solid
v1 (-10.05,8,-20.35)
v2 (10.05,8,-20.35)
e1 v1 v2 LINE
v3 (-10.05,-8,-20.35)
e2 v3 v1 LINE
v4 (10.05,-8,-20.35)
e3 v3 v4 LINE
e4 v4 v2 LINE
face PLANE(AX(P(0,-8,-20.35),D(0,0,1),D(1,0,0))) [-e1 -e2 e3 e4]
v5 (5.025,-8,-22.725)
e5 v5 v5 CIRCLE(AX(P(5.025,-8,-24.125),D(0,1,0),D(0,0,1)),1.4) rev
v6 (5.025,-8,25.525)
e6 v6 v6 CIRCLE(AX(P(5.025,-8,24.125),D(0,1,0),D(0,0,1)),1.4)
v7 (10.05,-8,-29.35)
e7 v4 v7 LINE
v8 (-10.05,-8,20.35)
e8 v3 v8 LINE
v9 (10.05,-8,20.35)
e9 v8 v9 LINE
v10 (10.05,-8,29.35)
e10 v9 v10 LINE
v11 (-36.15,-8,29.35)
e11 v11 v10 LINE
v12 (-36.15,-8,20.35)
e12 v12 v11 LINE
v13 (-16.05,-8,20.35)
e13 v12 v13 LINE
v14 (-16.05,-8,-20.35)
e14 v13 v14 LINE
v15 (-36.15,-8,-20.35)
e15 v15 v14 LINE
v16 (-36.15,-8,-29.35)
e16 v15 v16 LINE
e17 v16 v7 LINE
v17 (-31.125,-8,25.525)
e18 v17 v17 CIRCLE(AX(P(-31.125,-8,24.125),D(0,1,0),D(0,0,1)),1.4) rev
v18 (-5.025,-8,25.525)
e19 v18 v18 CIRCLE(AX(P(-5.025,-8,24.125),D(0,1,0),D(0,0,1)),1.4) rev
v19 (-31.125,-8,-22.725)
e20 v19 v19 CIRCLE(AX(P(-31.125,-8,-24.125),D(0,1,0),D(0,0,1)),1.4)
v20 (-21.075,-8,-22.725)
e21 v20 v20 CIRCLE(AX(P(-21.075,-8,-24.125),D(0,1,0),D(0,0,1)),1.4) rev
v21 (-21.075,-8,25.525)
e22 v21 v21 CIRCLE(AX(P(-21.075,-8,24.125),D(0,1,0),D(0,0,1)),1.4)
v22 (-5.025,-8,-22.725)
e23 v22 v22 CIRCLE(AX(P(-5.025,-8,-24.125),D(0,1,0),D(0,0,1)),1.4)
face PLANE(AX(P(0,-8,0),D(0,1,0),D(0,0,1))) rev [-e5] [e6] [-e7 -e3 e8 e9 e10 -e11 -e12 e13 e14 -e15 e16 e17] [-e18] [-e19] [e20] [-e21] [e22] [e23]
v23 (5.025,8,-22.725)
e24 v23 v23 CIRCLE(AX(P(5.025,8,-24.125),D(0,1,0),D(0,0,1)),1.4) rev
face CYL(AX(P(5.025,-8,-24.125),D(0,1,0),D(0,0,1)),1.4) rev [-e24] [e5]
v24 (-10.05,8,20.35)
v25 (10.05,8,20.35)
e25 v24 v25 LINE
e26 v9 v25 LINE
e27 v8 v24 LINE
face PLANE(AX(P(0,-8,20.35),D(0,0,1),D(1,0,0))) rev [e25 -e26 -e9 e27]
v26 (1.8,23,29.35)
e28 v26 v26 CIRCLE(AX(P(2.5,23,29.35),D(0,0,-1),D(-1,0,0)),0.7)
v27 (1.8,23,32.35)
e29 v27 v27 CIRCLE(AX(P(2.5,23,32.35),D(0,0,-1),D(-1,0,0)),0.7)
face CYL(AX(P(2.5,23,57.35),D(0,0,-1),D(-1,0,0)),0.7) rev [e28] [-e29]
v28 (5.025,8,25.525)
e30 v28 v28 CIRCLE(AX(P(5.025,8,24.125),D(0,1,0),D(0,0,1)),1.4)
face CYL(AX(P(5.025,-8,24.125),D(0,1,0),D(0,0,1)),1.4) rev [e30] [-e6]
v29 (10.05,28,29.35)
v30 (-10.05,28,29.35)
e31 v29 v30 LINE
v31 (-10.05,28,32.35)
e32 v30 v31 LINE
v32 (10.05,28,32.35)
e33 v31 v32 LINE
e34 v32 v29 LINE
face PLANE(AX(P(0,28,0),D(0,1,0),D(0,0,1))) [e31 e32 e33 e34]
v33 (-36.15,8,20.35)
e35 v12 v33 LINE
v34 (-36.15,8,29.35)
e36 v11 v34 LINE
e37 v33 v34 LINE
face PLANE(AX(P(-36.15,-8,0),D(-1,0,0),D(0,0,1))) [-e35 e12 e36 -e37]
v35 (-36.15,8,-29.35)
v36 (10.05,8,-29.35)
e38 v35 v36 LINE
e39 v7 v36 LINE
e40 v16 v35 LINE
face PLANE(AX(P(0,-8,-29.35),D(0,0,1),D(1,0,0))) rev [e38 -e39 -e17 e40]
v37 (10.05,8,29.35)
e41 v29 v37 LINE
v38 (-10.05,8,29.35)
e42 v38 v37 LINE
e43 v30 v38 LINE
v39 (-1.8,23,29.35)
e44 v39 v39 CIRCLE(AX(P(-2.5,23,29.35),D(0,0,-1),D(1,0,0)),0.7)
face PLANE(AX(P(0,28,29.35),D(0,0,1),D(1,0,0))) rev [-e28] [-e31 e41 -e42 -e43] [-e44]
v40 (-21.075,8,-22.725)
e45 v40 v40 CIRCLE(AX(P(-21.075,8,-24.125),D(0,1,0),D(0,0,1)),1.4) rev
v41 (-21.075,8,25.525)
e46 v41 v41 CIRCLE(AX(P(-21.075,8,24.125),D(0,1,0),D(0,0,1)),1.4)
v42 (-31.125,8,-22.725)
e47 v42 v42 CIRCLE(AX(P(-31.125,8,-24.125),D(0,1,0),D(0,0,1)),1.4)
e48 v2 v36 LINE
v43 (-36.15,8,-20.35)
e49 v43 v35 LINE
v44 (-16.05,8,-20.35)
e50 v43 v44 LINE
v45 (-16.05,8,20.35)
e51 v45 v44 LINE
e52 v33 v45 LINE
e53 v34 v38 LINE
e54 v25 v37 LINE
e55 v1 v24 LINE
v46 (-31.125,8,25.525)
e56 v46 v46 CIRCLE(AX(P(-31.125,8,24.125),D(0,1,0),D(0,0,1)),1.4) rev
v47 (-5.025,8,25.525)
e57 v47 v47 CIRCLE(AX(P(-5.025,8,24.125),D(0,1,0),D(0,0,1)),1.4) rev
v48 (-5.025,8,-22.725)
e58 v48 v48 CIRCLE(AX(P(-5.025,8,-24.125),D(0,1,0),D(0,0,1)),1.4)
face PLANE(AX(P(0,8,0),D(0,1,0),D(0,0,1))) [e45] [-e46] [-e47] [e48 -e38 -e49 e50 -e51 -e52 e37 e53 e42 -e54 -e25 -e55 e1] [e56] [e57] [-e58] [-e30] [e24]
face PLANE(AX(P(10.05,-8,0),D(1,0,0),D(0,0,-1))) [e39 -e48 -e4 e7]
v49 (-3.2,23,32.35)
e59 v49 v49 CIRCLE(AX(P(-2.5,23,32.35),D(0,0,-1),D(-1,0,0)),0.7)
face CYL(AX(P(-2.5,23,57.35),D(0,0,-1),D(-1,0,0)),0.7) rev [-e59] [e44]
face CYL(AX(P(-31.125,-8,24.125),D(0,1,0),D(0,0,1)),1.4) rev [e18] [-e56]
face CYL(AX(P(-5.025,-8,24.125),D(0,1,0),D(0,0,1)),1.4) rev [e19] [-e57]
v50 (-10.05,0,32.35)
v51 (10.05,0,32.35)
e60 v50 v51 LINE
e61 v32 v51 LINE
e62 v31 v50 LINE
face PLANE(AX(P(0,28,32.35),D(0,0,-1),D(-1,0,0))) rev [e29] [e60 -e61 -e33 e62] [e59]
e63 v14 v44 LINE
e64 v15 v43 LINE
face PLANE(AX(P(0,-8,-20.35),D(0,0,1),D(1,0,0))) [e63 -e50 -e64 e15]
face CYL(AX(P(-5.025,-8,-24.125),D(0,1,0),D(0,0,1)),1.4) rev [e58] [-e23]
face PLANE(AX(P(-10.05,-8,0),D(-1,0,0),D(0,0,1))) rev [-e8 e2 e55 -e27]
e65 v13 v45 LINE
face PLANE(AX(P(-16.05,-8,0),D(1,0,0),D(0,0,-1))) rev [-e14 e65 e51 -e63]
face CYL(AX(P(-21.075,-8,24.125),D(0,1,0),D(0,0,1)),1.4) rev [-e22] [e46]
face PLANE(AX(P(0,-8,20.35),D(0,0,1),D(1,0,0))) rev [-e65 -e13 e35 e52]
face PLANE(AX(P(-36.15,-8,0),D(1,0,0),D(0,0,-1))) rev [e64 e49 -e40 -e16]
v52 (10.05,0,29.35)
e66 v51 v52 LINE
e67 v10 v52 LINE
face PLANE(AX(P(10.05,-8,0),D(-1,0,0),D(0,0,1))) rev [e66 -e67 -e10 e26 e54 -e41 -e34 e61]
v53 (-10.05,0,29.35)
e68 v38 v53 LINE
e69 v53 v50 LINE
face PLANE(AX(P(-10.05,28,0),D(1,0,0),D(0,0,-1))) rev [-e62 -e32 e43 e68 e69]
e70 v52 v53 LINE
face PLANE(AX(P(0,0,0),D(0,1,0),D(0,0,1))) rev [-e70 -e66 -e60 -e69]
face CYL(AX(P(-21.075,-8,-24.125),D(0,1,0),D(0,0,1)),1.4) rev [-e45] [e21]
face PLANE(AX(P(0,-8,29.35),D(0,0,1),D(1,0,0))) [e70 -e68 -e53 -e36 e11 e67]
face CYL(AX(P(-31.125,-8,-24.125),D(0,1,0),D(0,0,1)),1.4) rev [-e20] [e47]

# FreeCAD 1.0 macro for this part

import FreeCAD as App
import Part
import Sketcher
Q = App.Units.Quantity

doc = App.newDocument("Part")
body = doc.addObject("PartDesign::Body", "Body")

# Sketch on XZ plane
sketch1 = body.newObject("Sketcher::SketchObject", "Sketch")
sketch1.AttachmentSupport = (doc.getObject("XZ_Plane"), [""])
sketch1.MapMode = "FlatFace"
sketch1.addGeometry([
    Part.LineSegment(App.Vector(-36.15, 20.35, 0), App.Vector(-36.15, 29.35, 0)),  # 0
    Part.LineSegment(App.Vector(-36.15, 29.35, 0), App.Vector(10.05, 29.35, 0)),  # 1
    Part.LineSegment(App.Vector(10.05, 29.35, 0), App.Vector(10.05, 20.35, 0)),  # 2
    Part.LineSegment(App.Vector(10.05, 20.35, 0), App.Vector(-10.05, 20.35, 0)),  # 3
    Part.LineSegment(App.Vector(-10.05, 20.35, 0), App.Vector(-10.05, -20.35, 0)),  # 4
    Part.LineSegment(App.Vector(-10.05, -20.35, 0), App.Vector(10.05, -20.35, 0)),  # 5
    Part.LineSegment(App.Vector(10.05, -20.35, 0), App.Vector(10.05, -29.35, 0)),  # 6
    Part.LineSegment(App.Vector(10.05, -29.35, 0), App.Vector(-36.15, -29.35, 0)),  # 7
    Part.LineSegment(App.Vector(-36.15, -29.35, 0), App.Vector(-36.15, -20.35, 0)),  # 8
    Part.LineSegment(App.Vector(-36.15, -20.35, 0), App.Vector(-16.05, -20.35, 0)),  # 9
    Part.LineSegment(App.Vector(-16.05, -20.35, 0), App.Vector(-16.05, 20.35, 0)),  # 10
    Part.LineSegment(App.Vector(-16.05, 20.35, 0), App.Vector(-36.15, 20.35, 0)),  # 11
    Part.Circle(App.Vector(-31.125, 24.125, 0), App.Vector(0, 0, 1), 1.4),  # 12
    Part.Circle(App.Vector(-21.075, 24.125, 0), App.Vector(0, 0, 1), 1.4),  # 13
    Part.Circle(App.Vector(5.025, 24.125, 0), App.Vector(0, 0, 1), 1.4),  # 14
    Part.Circle(App.Vector(-5.025, 24.125, 0), App.Vector(0, 0, 1), 1.4),  # 15
    Part.Circle(App.Vector(5.025, -24.125, 0), App.Vector(0, 0, 1), 1.4),  # 16
    Part.Circle(App.Vector(-5.025, -24.125, 0), App.Vector(0, 0, 1), 1.4),  # 17
    Part.Circle(App.Vector(-21.075, -24.125, 0), App.Vector(0, 0, 1), 1.4),  # 18
    Part.Circle(App.Vector(-31.125, -24.125, 0), App.Vector(0, 0, 1), 1.4),  # 19
], False)
sketch1.addConstraint([
    Sketcher.Constraint("Coincident", 0, 2, 1, 1),
    Sketcher.Constraint("Coincident", 1, 2, 2, 1),
    Sketcher.Constraint("Coincident", 2, 2, 3, 1),
    Sketcher.Constraint("Coincident", 3, 2, 4, 1),
    Sketcher.Constraint("Coincident", 4, 2, 5, 1),
    Sketcher.Constraint("Coincident", 5, 2, 6, 1),
    Sketcher.Constraint("Coincident", 6, 2, 7, 1),
    Sketcher.Constraint("Coincident", 7, 2, 8, 1),
    Sketcher.Constraint("Coincident", 8, 2, 9, 1),
    Sketcher.Constraint("Coincident", 9, 2, 10, 1),
    Sketcher.Constraint("Coincident", 10, 2, 11, 1),
    Sketcher.Constraint("Coincident", 11, 2, 0, 1),
    Sketcher.Constraint("Vertical", 0),
    Sketcher.Constraint("Horizontal", 1),
    Sketcher.Constraint("Vertical", 2),
    Sketcher.Constraint("Horizontal", 3),
    Sketcher.Constraint("Vertical", 4),
    Sketcher.Constraint("Horizontal", 5),
    Sketcher.Constraint("Vertical", 6),
    Sketcher.Constraint("Horizontal", 7),
    Sketcher.Constraint("Vertical", 8),
    Sketcher.Constraint("Horizontal", 9),
    Sketcher.Constraint("Vertical", 10),
    Sketcher.Constraint("Horizontal", 11),
    Sketcher.Constraint("Equal", 12, 13),
    Sketcher.Constraint("Equal", 13, 14),
    Sketcher.Constraint("Equal", 14, 15),
    Sketcher.Constraint("Equal", 15, 16),
    Sketcher.Constraint("Equal", 16, 17),
    Sketcher.Constraint("Equal", 17, 18),
    Sketcher.Constraint("Equal", 18, 19),
    Sketcher.Constraint("Symmetric", 15, 3, 16, 3, -1, 1),
    Sketcher.Constraint("Symmetric", 14, 3, 17, 3, -1, 1),
    Sketcher.Constraint("Symmetric", 2, 2, 4, 2, -1, 1),
    Sketcher.Constraint("Symmetric", 14, 3, 15, 3, -2),
    Sketcher.Constraint("Symmetric", 13, 3, 18, 3, -1),
    Sketcher.Constraint("Symmetric", 12, 3, 19, 3, -1),
    Sketcher.Constraint("Symmetric", 1, 2, 6, 2, -1),
    Sketcher.Constraint("Symmetric", 8, 2, 11, 2, -1),
    Sketcher.Constraint("Horizontal", 12, 3, 13, 3),
    Sketcher.Constraint("Horizontal", 13, 3, 14, 3),
    Sketcher.Constraint("Horizontal", 5, 2, 8, 2),
    Sketcher.Constraint("Equal", 5, 9),
    Sketcher.Constraint("Diameter", 12, Q("2.8 mm")),
    Sketcher.Constraint("DistanceY", 0, 1, 0, 2, Q("9 mm")),
    Sketcher.Constraint("DistanceX", 1, 1, 1, 2, Q("46.2 mm")),
    Sketcher.Constraint("DistanceX", 3, 2, 3, 1, Q("20.1 mm")),
    Sketcher.Constraint("DistanceY", 4, 2, 4, 1, Q("40.7 mm")),
    Sketcher.Constraint("DistanceX", 13, 3, 14, 3, Q("26.1 mm")),
    Sketcher.Constraint("DistanceX", 12, 3, 15, 3, Q("26.1 mm")),
    Sketcher.Constraint("DistanceX", 12, 3, 13, 3, Q("10.05 mm")),
    Sketcher.Constraint("DistanceY", 16, 3, 14, 3, Q("48.25 mm")),
])
pad1 = body.newObject("PartDesign::Pad", "Pad")
pad1.Profile = sketch1
pad1.Type = "TwoLengths"
pad1.Length = 8
pad1.Length2 = 8
pad1.Reversed = True

# Sketch on XZ plane
sketch2 = body.newObject("Sketcher::SketchObject", "Sketch001")
sketch2.AttachmentSupport = (doc.getObject("XZ_Plane"), [""])
sketch2.MapMode = "FlatFace"
sketch2.addGeometry([
    Part.LineSegment(App.Vector(-10.05, 29.35, 0), App.Vector(-10.05, 32.35, 0)),
    Part.LineSegment(App.Vector(-10.05, 32.35, 0), App.Vector(10.05, 32.35, 0)),
    Part.LineSegment(App.Vector(10.05, 32.35, 0), App.Vector(10.05, 29.35, 0)),
    Part.LineSegment(App.Vector(10.05, 29.35, 0), App.Vector(-10.05, 29.35, 0)),
], False)
sketch2.addConstraint([
    Sketcher.Constraint("Coincident", 0, 2, 1, 1),
    Sketcher.Constraint("Coincident", 1, 2, 2, 1),
    Sketcher.Constraint("Coincident", 2, 2, 3, 1),
    Sketcher.Constraint("Coincident", 3, 2, 0, 1),
    Sketcher.Constraint("Vertical", 0),
    Sketcher.Constraint("Horizontal", 1),
    Sketcher.Constraint("Vertical", 2),
    Sketcher.Constraint("Horizontal", 3),
    Sketcher.Constraint("DistanceY", 0, 1, 0, 2, Q("3 mm")),
    Sketcher.Constraint("DistanceX", 1, 1, 1, 2, Q("20.1 mm")),
    Sketcher.Constraint("DistanceX", 0, 2, -1, 1, Q("10.05 mm")),
    Sketcher.Constraint("DistanceY", -1, 1, 0, 2, Q("32.35 mm")),
])
pad2 = body.newObject("PartDesign::Pad", "Pad001")
pad2.Profile = sketch2
pad2.Length = 28
pad2.Reversed = True

# Sketch on XY plane
sketch3 = body.newObject("Sketcher::SketchObject", "Sketch002")
sketch3.AttachmentSupport = (doc.getObject("XY_Plane"), [""])
sketch3.MapMode = "FlatFace"
sketch3.AttachmentOffset = App.Placement(App.Vector(0, 0, 29.35), App.Rotation())
sketch3.addGeometry([
    Part.Circle(App.Vector(2.5, 23, 0), App.Vector(0, 0, 1), 0.7),
    Part.Circle(App.Vector(-2.5, 23, 0), App.Vector(0, 0, 1), 0.7),
], False)
sketch3.addConstraint([
    Sketcher.Constraint("Equal", 0, 1),
    Sketcher.Constraint("Symmetric", 0, 3, 1, 3, -2),
    Sketcher.Constraint("Diameter", 0, Q("1.4 mm")),
    Sketcher.Constraint("DistanceY", -1, 1, 0, 3, Q("23 mm")),
    Sketcher.Constraint("DistanceX", 1, 3, 0, 3, Q("5 mm")),
])
pocket1 = body.newObject("PartDesign::Pocket", "Pocket")
pocket1.Profile = sketch3
pocket1.Length = 28
pocket1.Reversed = True

doc.recompute()
